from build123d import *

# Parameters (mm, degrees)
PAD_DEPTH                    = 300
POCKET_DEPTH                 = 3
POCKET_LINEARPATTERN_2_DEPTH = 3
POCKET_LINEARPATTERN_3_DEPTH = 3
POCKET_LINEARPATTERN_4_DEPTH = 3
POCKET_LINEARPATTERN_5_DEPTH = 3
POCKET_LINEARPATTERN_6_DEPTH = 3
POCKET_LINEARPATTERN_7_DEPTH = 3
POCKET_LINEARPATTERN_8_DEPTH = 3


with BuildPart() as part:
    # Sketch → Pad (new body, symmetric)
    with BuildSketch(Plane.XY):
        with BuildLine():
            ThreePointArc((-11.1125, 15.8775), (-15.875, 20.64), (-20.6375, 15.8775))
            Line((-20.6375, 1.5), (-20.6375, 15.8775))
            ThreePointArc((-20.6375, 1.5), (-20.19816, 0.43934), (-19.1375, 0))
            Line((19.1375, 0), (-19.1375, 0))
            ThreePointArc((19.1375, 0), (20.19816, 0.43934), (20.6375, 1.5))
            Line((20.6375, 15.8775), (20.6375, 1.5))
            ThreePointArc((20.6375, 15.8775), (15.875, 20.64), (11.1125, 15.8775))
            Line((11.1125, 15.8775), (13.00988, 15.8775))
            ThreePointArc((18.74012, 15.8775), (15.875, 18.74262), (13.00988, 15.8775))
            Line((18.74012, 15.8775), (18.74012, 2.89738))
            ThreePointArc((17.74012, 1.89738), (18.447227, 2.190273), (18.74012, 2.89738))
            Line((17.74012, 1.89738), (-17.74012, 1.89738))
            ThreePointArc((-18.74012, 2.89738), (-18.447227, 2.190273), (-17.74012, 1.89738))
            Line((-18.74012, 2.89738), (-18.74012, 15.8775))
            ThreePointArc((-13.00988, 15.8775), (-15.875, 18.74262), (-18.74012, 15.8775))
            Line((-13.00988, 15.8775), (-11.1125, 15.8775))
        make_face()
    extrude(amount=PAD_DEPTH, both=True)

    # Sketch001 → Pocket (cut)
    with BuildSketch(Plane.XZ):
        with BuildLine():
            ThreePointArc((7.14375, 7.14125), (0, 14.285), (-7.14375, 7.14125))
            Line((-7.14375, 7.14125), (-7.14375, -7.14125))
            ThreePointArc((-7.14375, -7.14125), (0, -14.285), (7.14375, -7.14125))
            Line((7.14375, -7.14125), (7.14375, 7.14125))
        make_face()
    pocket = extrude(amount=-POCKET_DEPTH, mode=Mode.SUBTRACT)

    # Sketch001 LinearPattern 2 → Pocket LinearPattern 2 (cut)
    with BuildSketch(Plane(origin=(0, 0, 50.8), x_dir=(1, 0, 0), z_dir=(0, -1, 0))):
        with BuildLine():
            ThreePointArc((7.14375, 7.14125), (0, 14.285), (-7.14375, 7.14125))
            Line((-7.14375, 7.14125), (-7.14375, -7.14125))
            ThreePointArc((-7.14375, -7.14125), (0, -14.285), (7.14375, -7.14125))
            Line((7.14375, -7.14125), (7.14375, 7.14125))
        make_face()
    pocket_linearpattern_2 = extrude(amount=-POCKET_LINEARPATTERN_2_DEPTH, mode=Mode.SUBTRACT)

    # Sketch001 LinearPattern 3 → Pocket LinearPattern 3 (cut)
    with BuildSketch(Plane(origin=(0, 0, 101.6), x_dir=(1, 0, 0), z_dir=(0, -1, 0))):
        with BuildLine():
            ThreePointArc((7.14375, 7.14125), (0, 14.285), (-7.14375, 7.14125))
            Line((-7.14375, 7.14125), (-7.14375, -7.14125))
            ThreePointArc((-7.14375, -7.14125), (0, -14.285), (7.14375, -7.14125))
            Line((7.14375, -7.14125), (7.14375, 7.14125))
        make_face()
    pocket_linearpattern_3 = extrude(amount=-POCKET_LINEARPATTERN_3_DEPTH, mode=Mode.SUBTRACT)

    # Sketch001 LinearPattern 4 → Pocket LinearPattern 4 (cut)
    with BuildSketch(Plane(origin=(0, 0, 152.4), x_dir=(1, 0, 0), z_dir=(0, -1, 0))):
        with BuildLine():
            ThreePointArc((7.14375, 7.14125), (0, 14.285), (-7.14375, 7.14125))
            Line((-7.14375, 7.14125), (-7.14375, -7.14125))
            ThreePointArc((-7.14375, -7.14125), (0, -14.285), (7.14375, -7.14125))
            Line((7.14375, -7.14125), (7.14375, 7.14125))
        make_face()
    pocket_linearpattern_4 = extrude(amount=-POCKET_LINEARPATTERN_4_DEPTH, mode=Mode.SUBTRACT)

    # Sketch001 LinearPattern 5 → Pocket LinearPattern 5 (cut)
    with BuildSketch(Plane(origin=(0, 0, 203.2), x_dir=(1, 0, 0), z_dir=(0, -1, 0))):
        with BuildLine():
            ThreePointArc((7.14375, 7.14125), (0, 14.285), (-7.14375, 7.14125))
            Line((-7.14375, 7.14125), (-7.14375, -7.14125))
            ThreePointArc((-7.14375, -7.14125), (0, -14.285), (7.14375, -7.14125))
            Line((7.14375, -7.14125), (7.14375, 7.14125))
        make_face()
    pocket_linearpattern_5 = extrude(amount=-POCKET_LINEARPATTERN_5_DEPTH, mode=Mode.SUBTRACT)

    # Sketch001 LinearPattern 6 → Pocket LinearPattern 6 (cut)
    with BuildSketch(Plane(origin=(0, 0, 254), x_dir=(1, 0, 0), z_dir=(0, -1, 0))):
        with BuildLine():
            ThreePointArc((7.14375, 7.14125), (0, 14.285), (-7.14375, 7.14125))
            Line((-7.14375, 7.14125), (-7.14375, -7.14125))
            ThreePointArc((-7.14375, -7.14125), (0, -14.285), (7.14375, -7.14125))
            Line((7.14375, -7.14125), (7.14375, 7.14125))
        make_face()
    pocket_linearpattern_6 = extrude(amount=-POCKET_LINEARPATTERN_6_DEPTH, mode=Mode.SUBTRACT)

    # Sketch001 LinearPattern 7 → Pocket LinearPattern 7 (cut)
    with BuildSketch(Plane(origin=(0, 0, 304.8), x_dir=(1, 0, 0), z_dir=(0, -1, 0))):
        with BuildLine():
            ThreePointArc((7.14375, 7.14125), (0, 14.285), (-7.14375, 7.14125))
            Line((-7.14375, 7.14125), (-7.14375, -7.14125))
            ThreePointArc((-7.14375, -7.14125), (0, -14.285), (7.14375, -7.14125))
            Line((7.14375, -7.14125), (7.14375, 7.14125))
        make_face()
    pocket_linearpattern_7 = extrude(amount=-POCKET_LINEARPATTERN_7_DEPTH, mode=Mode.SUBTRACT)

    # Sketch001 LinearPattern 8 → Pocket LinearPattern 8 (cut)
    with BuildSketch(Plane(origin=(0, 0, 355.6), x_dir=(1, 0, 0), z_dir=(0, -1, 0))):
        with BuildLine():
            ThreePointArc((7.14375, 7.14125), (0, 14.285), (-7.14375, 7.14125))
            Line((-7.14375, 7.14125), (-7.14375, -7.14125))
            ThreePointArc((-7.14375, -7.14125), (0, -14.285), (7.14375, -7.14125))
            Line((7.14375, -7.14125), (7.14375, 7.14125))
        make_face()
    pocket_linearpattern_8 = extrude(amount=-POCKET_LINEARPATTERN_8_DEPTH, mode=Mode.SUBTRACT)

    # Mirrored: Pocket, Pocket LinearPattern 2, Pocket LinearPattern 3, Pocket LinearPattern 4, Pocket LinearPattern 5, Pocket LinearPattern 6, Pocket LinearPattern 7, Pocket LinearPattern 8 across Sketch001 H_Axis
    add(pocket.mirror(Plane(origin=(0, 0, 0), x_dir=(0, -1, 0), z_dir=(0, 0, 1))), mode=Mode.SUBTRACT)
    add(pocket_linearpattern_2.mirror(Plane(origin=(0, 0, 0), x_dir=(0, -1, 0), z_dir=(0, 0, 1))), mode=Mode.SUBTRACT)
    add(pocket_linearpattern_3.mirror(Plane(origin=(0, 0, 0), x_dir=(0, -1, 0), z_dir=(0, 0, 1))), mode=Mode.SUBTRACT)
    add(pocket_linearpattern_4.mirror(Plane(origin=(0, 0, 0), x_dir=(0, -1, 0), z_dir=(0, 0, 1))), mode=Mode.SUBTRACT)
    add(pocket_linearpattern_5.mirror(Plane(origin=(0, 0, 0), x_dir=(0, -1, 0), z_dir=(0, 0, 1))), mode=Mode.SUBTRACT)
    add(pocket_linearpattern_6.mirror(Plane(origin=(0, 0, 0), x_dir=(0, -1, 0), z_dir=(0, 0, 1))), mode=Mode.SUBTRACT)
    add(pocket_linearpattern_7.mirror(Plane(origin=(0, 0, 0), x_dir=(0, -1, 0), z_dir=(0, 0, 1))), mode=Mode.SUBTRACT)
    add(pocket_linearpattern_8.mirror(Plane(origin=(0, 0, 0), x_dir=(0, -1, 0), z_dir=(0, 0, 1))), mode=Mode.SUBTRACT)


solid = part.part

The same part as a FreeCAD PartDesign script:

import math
import FreeCAD as App
import Part
import Sketcher

doc = App.newDocument("Part")
body = doc.addObject("PartDesign::Body", "Body")

sketch1 = doc.addObject("Sketcher::SketchObject", "Sketch")
body.addObject(sketch1)
sketch1.AttachmentSupport = (doc.XY_Plane, [""])
sketch1.MapMode = "FlatFace"
sketch1.addGeometry(Part.ArcOfCircle(Part.Circle(App.Vector(-15.875, 15.8775, 0), App.Vector(0, 0, 1), 4.7625), math.radians(0), math.radians(180)), False)
sketch1.addGeometry(Part.LineSegment(App.Vector(-20.6375, 15.8775, 0), App.Vector(-20.6375, 1.5, 0)), False)
sketch1.addGeometry(Part.ArcOfCircle(Part.Circle(App.Vector(-19.137499, 1.500001, 0), App.Vector(0, 0, 1), 1.500001), math.radians(-179.999978), math.radians(-90.000022)), False)
sketch1.addGeometry(Part.LineSegment(App.Vector(-19.1375, 0, 0), App.Vector(19.1375, 0, 0)), False)
sketch1.addGeometry(Part.ArcOfCircle(Part.Circle(App.Vector(19.137499, 1.500001, 0), App.Vector(0, 0, 1), 1.500001), math.radians(-89.999978), math.radians(-0.000022)), False)
sketch1.addGeometry(Part.LineSegment(App.Vector(20.6375, 1.5, 0), App.Vector(20.6375, 15.8775, 0)), False)
sketch1.addGeometry(Part.ArcOfCircle(Part.Circle(App.Vector(15.875, 15.8775, 0), App.Vector(0, 0, 1), 4.7625), math.radians(0), math.radians(180)), False)
sketch1.addGeometry(Part.LineSegment(App.Vector(11.1125, 15.8775, 0), App.Vector(13.00988, 15.8775, 0)), False)
sketch1.addGeometry(Part.ArcOfCircle(Part.Circle(App.Vector(15.875, 15.8775, 0), App.Vector(0, 0, 1), 2.86512), math.radians(0), math.radians(180)), False)
sketch1.addGeometry(Part.LineSegment(App.Vector(18.74012, 15.8775, 0), App.Vector(18.74012, 2.89738, 0)), False)
sketch1.addGeometry(Part.ArcOfCircle(Part.Circle(App.Vector(17.740121, 2.897379, 0), App.Vector(0, 0, 1), 0.999999), math.radians(-90.000043), math.radians(0.000043)), False)
sketch1.addGeometry(Part.LineSegment(App.Vector(17.74012, 1.89738, 0), App.Vector(-17.74012, 1.89738, 0)), False)
sketch1.addGeometry(Part.ArcOfCircle(Part.Circle(App.Vector(-17.740121, 2.897379, 0), App.Vector(0, 0, 1), 0.999999), math.radians(179.999957), math.radians(270.000043)), False)
sketch1.addGeometry(Part.LineSegment(App.Vector(-18.74012, 2.89738, 0), App.Vector(-18.74012, 15.8775, 0)), False)
sketch1.addGeometry(Part.ArcOfCircle(Part.Circle(App.Vector(-15.875, 15.8775, 0), App.Vector(0, 0, 1), 2.86512), math.radians(0), math.radians(180)), False)
sketch1.addGeometry(Part.LineSegment(App.Vector(-13.00988, 15.8775, 0), App.Vector(-11.1125, 15.8775, 0)), False)
sketch1.addConstraint(Sketcher.Constraint("Tangent", 0, 2, 1, 1))
sketch1.addConstraint(Sketcher.Constraint("Tangent", 1, 2, 2, 1))
sketch1.addConstraint(Sketcher.Constraint("Tangent", 2, 2, 3, 1))
sketch1.addConstraint(Sketcher.Constraint("Tangent", 3, 2, 4, 1))
sketch1.addConstraint(Sketcher.Constraint("Tangent", 4, 2, 5, 1))
sketch1.addConstraint(Sketcher.Constraint("Tangent", 5, 2, 6, 1))
sketch1.addConstraint(Sketcher.Constraint("Coincident", 6, 2, 7, 1))
sketch1.addConstraint(Sketcher.Constraint("Coincident", 7, 2, 8, 2))
sketch1.addConstraint(Sketcher.Constraint("Tangent", 8, 1, 9, 1))
sketch1.addConstraint(Sketcher.Constraint("Tangent", 9, 2, 10, 2))
sketch1.addConstraint(Sketcher.Constraint("Tangent", 10, 1, 11, 1))
sketch1.addConstraint(Sketcher.Constraint("Tangent", 11, 2, 12, 2))
sketch1.addConstraint(Sketcher.Constraint("Tangent", 12, 1, 13, 1))
sketch1.addConstraint(Sketcher.Constraint("Tangent", 13, 2, 14, 2))
sketch1.addConstraint(Sketcher.Constraint("Coincident", 14, 1, 15, 1))
sketch1.addConstraint(Sketcher.Constraint("Coincident", 15, 2, 0, 1))
sketch1.addConstraint(Sketcher.Constraint("Vertical", 1))
sketch1.addConstraint(Sketcher.Constraint("Horizontal", 3))
sketch1.addConstraint(Sketcher.Constraint("Vertical", 5))
sketch1.addConstraint(Sketcher.Constraint("Horizontal", 7))
sketch1.addConstraint(Sketcher.Constraint("Vertical", 9))
sketch1.addConstraint(Sketcher.Constraint("Horizontal", 11))
sketch1.addConstraint(Sketcher.Constraint("Vertical", 13))
sketch1.addConstraint(Sketcher.Constraint("Horizontal", 15))
sketch1.addConstraint(Sketcher.Constraint("Coincident", 8, 3, 6, 3))
sketch1.addConstraint(Sketcher.Constraint("Coincident", 14, 3, 0, 3))
sketch1.addConstraint(Sketcher.Constraint("Equal", 2, 4))
sketch1.addConstraint(Sketcher.Constraint("Equal", 0, 6))
sketch1.addConstraint(Sketcher.Constraint("Equal", 10, 12))
sketch1.addConstraint(Sketcher.Constraint("Equal", 8, 14))
sketch1.addConstraint(Sketcher.Constraint("Symmetric", 2, 2, 3, 2, -1, 1))
sketch1.addConstraint(Sketcher.Constraint("Horizontal", 0, 3, 6, 3))
sketch1.addConstraint(Sketcher.Constraint("Horizontal", 5, 2, 6, 2))
sketch1.addConstraint(Sketcher.Constraint("Horizontal", 13, 2, 14, 1))
sketch1.addConstraint(Sketcher.Constraint("Radius", 10, 0.999999))
sketch1.addConstraint(Sketcher.Constraint("Radius", 2, 1.500001))
sketch1.addConstraint(Sketcher.Constraint("Radius", 0, 4.7625))
sketch1.addConstraint(Sketcher.Constraint("DistanceX", 3, 1, 3, 2, 38.275))
sketch1.addConstraint(Sketcher.Constraint("Radius", 8, 2.86512))
sketch1.addConstraint(Sketcher.Constraint("DistanceY", 1, 2, 1, 1, 14.3775))
sketch1.addConstraint(Sketcher.Constraint("DistanceY", 9, 2, 9, 1, 12.98012))
pad1 = doc.addObject("PartDesign::Pad", "Pad")
body.addObject(pad1)
pad1.Profile = sketch1
pad1.Length = 600
pad1.Midplane = True

sketch2 = doc.addObject("Sketcher::SketchObject", "Sketch001")
body.addObject(sketch2)
sketch2.AttachmentSupport = (doc.XZ_Plane, [""])
sketch2.MapMode = "FlatFace"
sketch2.addGeometry(Part.ArcOfCircle(Part.Circle(App.Vector(0, 7.14125, 0), App.Vector(0, 0, 1), 7.14375), math.radians(0), math.radians(180)), False)
sketch2.addGeometry(Part.LineSegment(App.Vector(-7.14375, 7.14125, 0), App.Vector(-7.14375, -7.14125, 0)), False)
sketch2.addGeometry(Part.ArcOfCircle(Part.Circle(App.Vector(0, -7.14125, 0), App.Vector(0, 0, 1), 7.14375), math.radians(180), math.radians(360)), False)
sketch2.addGeometry(Part.LineSegment(App.Vector(7.14375, -7.14125, 0), App.Vector(7.14375, 7.14125, 0)), False)
sketch2.addConstraint(Sketcher.Constraint("Tangent", 0, 2, 1, 1))
sketch2.addConstraint(Sketcher.Constraint("Tangent", 1, 2, 2, 1))
sketch2.addConstraint(Sketcher.Constraint("Tangent", 2, 2, 3, 1))
sketch2.addConstraint(Sketcher.Constraint("Tangent", 3, 2, 0, 1))
sketch2.addConstraint(Sketcher.Constraint("Vertical", 1))
sketch2.addConstraint(Sketcher.Constraint("Vertical", 3))
sketch2.addConstraint(Sketcher.Constraint("Symmetric", 0, 3, 2, 3, -1, 1))
sketch2.addConstraint(Sketcher.Constraint("Radius", 0, 7.14375))
sketch2.addConstraint(Sketcher.Constraint("DistanceY", 1, 2, 1, 1, 14.2825))
pocket1 = doc.addObject("PartDesign::Pocket", "Pocket")
body.addObject(pocket1)
pocket1.Profile = sketch2
pocket1.Length = 3

sketch3 = doc.addObject("Sketcher::SketchObject", "Sketch002")
body.addObject(sketch3)
sketch3.AttachmentSupport = (doc.XZ_Plane, [""])
sketch3.MapMode = "FlatFace"
sketch3.addGeometry(Part.ArcOfCircle(Part.Circle(App.Vector(0, 57.94125, 0), App.Vector(0, 0, 1), 7.14375), math.radians(0), math.radians(180)), False)
sketch3.addGeometry(Part.LineSegment(App.Vector(-7.14375, 57.94125, 0), App.Vector(-7.14375, 43.65875, 0)), False)
sketch3.addGeometry(Part.ArcOfCircle(Part.Circle(App.Vector(0, 43.65875, 0), App.Vector(0, 0, 1), 7.14375), math.radians(180), math.radians(360)), False)
sketch3.addGeometry(Part.LineSegment(App.Vector(7.14375, 43.65875, 0), App.Vector(7.14375, 57.94125, 0)), False)
sketch3.addConstraint(Sketcher.Constraint("Tangent", 0, 2, 1, 1))
sketch3.addConstraint(Sketcher.Constraint("Tangent", 1, 2, 2, 1))
sketch3.addConstraint(Sketcher.Constraint("Tangent", 2, 2, 3, 1))
sketch3.addConstraint(Sketcher.Constraint("Tangent", 3, 2, 0, 1))
sketch3.addConstraint(Sketcher.Constraint("Vertical", 1))
sketch3.addConstraint(Sketcher.Constraint("Vertical", 3))
sketch3.addConstraint(Sketcher.Constraint("PointOnObject", 0, 3, -2))
sketch3.addConstraint(Sketcher.Constraint("Radius", 0, 7.14375))
sketch3.addConstraint(Sketcher.Constraint("DistanceY", 1, 2, 1, 1, 14.2825))
sketch3.addConstraint(Sketcher.Constraint("DistanceY", -1, 1, 0, 3, 57.94125))
pocket2 = doc.addObject("PartDesign::Pocket", "Pocket001")
body.addObject(pocket2)
pocket2.Profile = sketch3
pocket2.Length = 3

sketch4 = doc.addObject("Sketcher::SketchObject", "Sketch003")
body.addObject(sketch4)
sketch4.AttachmentSupport = (doc.XZ_Plane, [""])
sketch4.MapMode = "FlatFace"
sketch4.addGeometry(Part.ArcOfCircle(Part.Circle(App.Vector(0, 108.74125, 0), App.Vector(0, 0, 1), 7.14375), math.radians(0), math.radians(180)), False)
sketch4.addGeometry(Part.LineSegment(App.Vector(-7.14375, 108.74125, 0), App.Vector(-7.14375, 94.45875, 0)), False)
sketch4.addGeometry(Part.ArcOfCircle(Part.Circle(App.Vector(0, 94.45875, 0), App.Vector(0, 0, 1), 7.14375), math.radians(180), math.radians(360)), False)
sketch4.addGeometry(Part.LineSegment(App.Vector(7.14375, 94.45875, 0), App.Vector(7.14375, 108.74125, 0)), False)
sketch4.addConstraint(Sketcher.Constraint("Tangent", 0, 2, 1, 1))
sketch4.addConstraint(Sketcher.Constraint("Tangent", 1, 2, 2, 1))
sketch4.addConstraint(Sketcher.Constraint("Tangent", 2, 2, 3, 1))
sketch4.addConstraint(Sketcher.Constraint("Tangent", 3, 2, 0, 1))
sketch4.addConstraint(Sketcher.Constraint("Vertical", 1))
sketch4.addConstraint(Sketcher.Constraint("Vertical", 3))
sketch4.addConstraint(Sketcher.Constraint("PointOnObject", 0, 3, -2))
sketch4.addConstraint(Sketcher.Constraint("Radius", 0, 7.14375))
sketch4.addConstraint(Sketcher.Constraint("DistanceY", 1, 2, 1, 1, 14.2825))
sketch4.addConstraint(Sketcher.Constraint("DistanceY", -1, 1, 0, 3, 108.74125))
pocket3 = doc.addObject("PartDesign::Pocket", "Pocket002")
body.addObject(pocket3)
pocket3.Profile = sketch4
pocket3.Length = 3

sketch5 = doc.addObject("Sketcher::SketchObject", "Sketch004")
body.addObject(sketch5)
sketch5.AttachmentSupport = (doc.XZ_Plane, [""])
sketch5.MapMode = "FlatFace"
sketch5.addGeometry(Part.ArcOfCircle(Part.Circle(App.Vector(0, 159.54125, 0), App.Vector(0, 0, 1), 7.14375), math.radians(0), math.radians(180)), False)
sketch5.addGeometry(Part.LineSegment(App.Vector(-7.14375, 159.54125, 0), App.Vector(-7.14375, 145.25875, 0)), False)
sketch5.addGeometry(Part.ArcOfCircle(Part.Circle(App.Vector(0, 145.25875, 0), App.Vector(0, 0, 1), 7.14375), math.radians(180), math.radians(360)), False)
sketch5.addGeometry(Part.LineSegment(App.Vector(7.14375, 145.25875, 0), App.Vector(7.14375, 159.54125, 0)), False)
sketch5.addConstraint(Sketcher.Constraint("Tangent", 0, 2, 1, 1))
sketch5.addConstraint(Sketcher.Constraint("Tangent", 1, 2, 2, 1))
sketch5.addConstraint(Sketcher.Constraint("Tangent", 2, 2, 3, 1))
sketch5.addConstraint(Sketcher.Constraint("Tangent", 3, 2, 0, 1))
sketch5.addConstraint(Sketcher.Constraint("Vertical", 1))
sketch5.addConstraint(Sketcher.Constraint("Vertical", 3))
sketch5.addConstraint(Sketcher.Constraint("PointOnObject", 0, 3, -2))
sketch5.addConstraint(Sketcher.Constraint("Radius", 0, 7.14375))
sketch5.addConstraint(Sketcher.Constraint("DistanceY", 1, 2, 1, 1, 14.2825))
sketch5.addConstraint(Sketcher.Constraint("DistanceY", -1, 1, 0, 3, 159.54125))
pocket4 = doc.addObject("PartDesign::Pocket", "Pocket003")
body.addObject(pocket4)
pocket4.Profile = sketch5
pocket4.Length = 3

sketch6 = doc.addObject("Sketcher::SketchObject", "Sketch005")
body.addObject(sketch6)
sketch6.AttachmentSupport = (doc.XZ_Plane, [""])
sketch6.MapMode = "FlatFace"
sketch6.addGeometry(Part.ArcOfCircle(Part.Circle(App.Vector(0, 210.34125, 0), App.Vector(0, 0, 1), 7.14375), math.radians(0), math.radians(180)), False)
sketch6.addGeometry(Part.LineSegment(App.Vector(-7.14375, 210.34125, 0), App.Vector(-7.14375, 196.05875, 0)), False)
sketch6.addGeometry(Part.ArcOfCircle(Part.Circle(App.Vector(0, 196.05875, 0), App.Vector(0, 0, 1), 7.14375), math.radians(180), math.radians(360)), False)
sketch6.addGeometry(Part.LineSegment(App.Vector(7.14375, 196.05875, 0), App.Vector(7.14375, 210.34125, 0)), False)
sketch6.addConstraint(Sketcher.Constraint("Tangent", 0, 2, 1, 1))
sketch6.addConstraint(Sketcher.Constraint("Tangent", 1, 2, 2, 1))
sketch6.addConstraint(Sketcher.Constraint("Tangent", 2, 2, 3, 1))
sketch6.addConstraint(Sketcher.Constraint("Tangent", 3, 2, 0, 1))
sketch6.addConstraint(Sketcher.Constraint("Vertical", 1))
sketch6.addConstraint(Sketcher.Constraint("Vertical", 3))
sketch6.addConstraint(Sketcher.Constraint("PointOnObject", 0, 3, -2))
sketch6.addConstraint(Sketcher.Constraint("Radius", 0, 7.14375))
sketch6.addConstraint(Sketcher.Constraint("DistanceY", 1, 2, 1, 1, 14.2825))
sketch6.addConstraint(Sketcher.Constraint("DistanceY", -1, 1, 0, 3, 210.34125))
pocket5 = doc.addObject("PartDesign::Pocket", "Pocket004")
body.addObject(pocket5)
pocket5.Profile = sketch6
pocket5.Length = 3

sketch7 = doc.addObject("Sketcher::SketchObject", "Sketch006")
body.addObject(sketch7)
sketch7.AttachmentSupport = (doc.XZ_Plane, [""])
sketch7.MapMode = "FlatFace"
sketch7.addGeometry(Part.ArcOfCircle(Part.Circle(App.Vector(0, 261.14125, 0), App.Vector(0, 0, 1), 7.14375), math.radians(0), math.radians(180)), False)
sketch7.addGeometry(Part.LineSegment(App.Vector(-7.14375, 261.14125, 0), App.Vector(-7.14375, 246.85875, 0)), False)
sketch7.addGeometry(Part.ArcOfCircle(Part.Circle(App.Vector(0, 246.85875, 0), App.Vector(0, 0, 1), 7.14375), math.radians(180), math.radians(360)), False)
sketch7.addGeometry(Part.LineSegment(App.Vector(7.14375, 246.85875, 0), App.Vector(7.14375, 261.14125, 0)), False)
sketch7.addConstraint(Sketcher.Constraint("Tangent", 0, 2, 1, 1))
sketch7.addConstraint(Sketcher.Constraint("Tangent", 1, 2, 2, 1))
sketch7.addConstraint(Sketcher.Constraint("Tangent", 2, 2, 3, 1))
sketch7.addConstraint(Sketcher.Constraint("Tangent", 3, 2, 0, 1))
sketch7.addConstraint(Sketcher.Constraint("Vertical", 1))
sketch7.addConstraint(Sketcher.Constraint("Vertical", 3))
sketch7.addConstraint(Sketcher.Constraint("PointOnObject", 0, 3, -2))
sketch7.addConstraint(Sketcher.Constraint("Radius", 0, 7.14375))
sketch7.addConstraint(Sketcher.Constraint("DistanceY", 1, 2, 1, 1, 14.2825))
sketch7.addConstraint(Sketcher.Constraint("DistanceY", -1, 1, 0, 3, 261.14125))
pocket6 = doc.addObject("PartDesign::Pocket", "Pocket005")
body.addObject(pocket6)
pocket6.Profile = sketch7
pocket6.Length = 3

sketch8 = doc.addObject("Sketcher::SketchObject", "Sketch007")
body.addObject(sketch8)
sketch8.AttachmentSupport = (doc.XZ_Plane, [""])
sketch8.MapMode = "FlatFace"
sketch8.addGeometry(Part.ArcOfCircle(Part.Circle(App.Vector(0, 311.94125, 0), App.Vector(0, 0, 1), 7.14375), math.radians(0), math.radians(180)), False)
sketch8.addGeometry(Part.LineSegment(App.Vector(-7.14375, 311.94125, 0), App.Vector(-7.14375, 297.65875, 0)), False)
sketch8.addGeometry(Part.ArcOfCircle(Part.Circle(App.Vector(0, 297.65875, 0), App.Vector(0, 0, 1), 7.14375), math.radians(180), math.radians(360)), False)
sketch8.addGeometry(Part.LineSegment(App.Vector(7.14375, 297.65875, 0), App.Vector(7.14375, 311.94125, 0)), False)
sketch8.addConstraint(Sketcher.Constraint("Tangent", 0, 2, 1, 1))
sketch8.addConstraint(Sketcher.Constraint("Tangent", 1, 2, 2, 1))
sketch8.addConstraint(Sketcher.Constraint("Tangent", 2, 2, 3, 1))
sketch8.addConstraint(Sketcher.Constraint("Tangent", 3, 2, 0, 1))
sketch8.addConstraint(Sketcher.Constraint("Vertical", 1))
sketch8.addConstraint(Sketcher.Constraint("Vertical", 3))
sketch8.addConstraint(Sketcher.Constraint("PointOnObject", 0, 3, -2))
sketch8.addConstraint(Sketcher.Constraint("Radius", 0, 7.14375))
sketch8.addConstraint(Sketcher.Constraint("DistanceY", 1, 2, 1, 1, 14.2825))
sketch8.addConstraint(Sketcher.Constraint("DistanceY", -1, 1, 0, 3, 311.94125))
pocket7 = doc.addObject("PartDesign::Pocket", "Pocket006")
body.addObject(pocket7)
pocket7.Profile = sketch8
pocket7.Length = 3

sketch9 = doc.addObject("Sketcher::SketchObject", "Sketch008")
body.addObject(sketch9)
sketch9.AttachmentSupport = (doc.XZ_Plane, [""])
sketch9.MapMode = "FlatFace"
sketch9.addGeometry(Part.ArcOfCircle(Part.Circle(App.Vector(0, 362.74125, 0), App.Vector(0, 0, 1), 7.14375), math.radians(0), math.radians(180)), False)
sketch9.addGeometry(Part.LineSegment(App.Vector(-7.14375, 362.74125, 0), App.Vector(-7.14375, 348.45875, 0)), False)
sketch9.addGeometry(Part.ArcOfCircle(Part.Circle(App.Vector(0, 348.45875, 0), App.Vector(0, 0, 1), 7.14375), math.radians(180), math.radians(360)), False)
sketch9.addGeometry(Part.LineSegment(App.Vector(7.14375, 348.45875, 0), App.Vector(7.14375, 362.74125, 0)), False)
sketch9.addConstraint(Sketcher.Constraint("Tangent", 0, 2, 1, 1))
sketch9.addConstraint(Sketcher.Constraint("Tangent", 1, 2, 2, 1))
sketch9.addConstraint(Sketcher.Constraint("Tangent", 2, 2, 3, 1))
sketch9.addConstraint(Sketcher.Constraint("Tangent", 3, 2, 0, 1))
sketch9.addConstraint(Sketcher.Constraint("Vertical", 1))
sketch9.addConstraint(Sketcher.Constraint("Vertical", 3))
sketch9.addConstraint(Sketcher.Constraint("PointOnObject", 0, 3, -2))
sketch9.addConstraint(Sketcher.Constraint("Radius", 0, 7.14375))
sketch9.addConstraint(Sketcher.Constraint("DistanceY", 1, 2, 1, 1, 14.2825))
sketch9.addConstraint(Sketcher.Constraint("DistanceY", -1, 1, 0, 3, 362.74125))
pocket8 = doc.addObject("PartDesign::Pocket", "Pocket007")
body.addObject(pocket8)
pocket8.Profile = sketch9
pocket8.Length = 3
doc.recompute()

mirrored = doc.addObject("PartDesign::Mirrored", "Mirrored")
body.addObject(mirrored)
mirrored.Originals = [pocket1, pocket2, pocket3, pocket4, pocket5, pocket6, pocket7, pocket8]
mirrored.MirrorPlane = (doc.XY_Plane, [""])
body.Tip = mirrored

doc.recompute()
